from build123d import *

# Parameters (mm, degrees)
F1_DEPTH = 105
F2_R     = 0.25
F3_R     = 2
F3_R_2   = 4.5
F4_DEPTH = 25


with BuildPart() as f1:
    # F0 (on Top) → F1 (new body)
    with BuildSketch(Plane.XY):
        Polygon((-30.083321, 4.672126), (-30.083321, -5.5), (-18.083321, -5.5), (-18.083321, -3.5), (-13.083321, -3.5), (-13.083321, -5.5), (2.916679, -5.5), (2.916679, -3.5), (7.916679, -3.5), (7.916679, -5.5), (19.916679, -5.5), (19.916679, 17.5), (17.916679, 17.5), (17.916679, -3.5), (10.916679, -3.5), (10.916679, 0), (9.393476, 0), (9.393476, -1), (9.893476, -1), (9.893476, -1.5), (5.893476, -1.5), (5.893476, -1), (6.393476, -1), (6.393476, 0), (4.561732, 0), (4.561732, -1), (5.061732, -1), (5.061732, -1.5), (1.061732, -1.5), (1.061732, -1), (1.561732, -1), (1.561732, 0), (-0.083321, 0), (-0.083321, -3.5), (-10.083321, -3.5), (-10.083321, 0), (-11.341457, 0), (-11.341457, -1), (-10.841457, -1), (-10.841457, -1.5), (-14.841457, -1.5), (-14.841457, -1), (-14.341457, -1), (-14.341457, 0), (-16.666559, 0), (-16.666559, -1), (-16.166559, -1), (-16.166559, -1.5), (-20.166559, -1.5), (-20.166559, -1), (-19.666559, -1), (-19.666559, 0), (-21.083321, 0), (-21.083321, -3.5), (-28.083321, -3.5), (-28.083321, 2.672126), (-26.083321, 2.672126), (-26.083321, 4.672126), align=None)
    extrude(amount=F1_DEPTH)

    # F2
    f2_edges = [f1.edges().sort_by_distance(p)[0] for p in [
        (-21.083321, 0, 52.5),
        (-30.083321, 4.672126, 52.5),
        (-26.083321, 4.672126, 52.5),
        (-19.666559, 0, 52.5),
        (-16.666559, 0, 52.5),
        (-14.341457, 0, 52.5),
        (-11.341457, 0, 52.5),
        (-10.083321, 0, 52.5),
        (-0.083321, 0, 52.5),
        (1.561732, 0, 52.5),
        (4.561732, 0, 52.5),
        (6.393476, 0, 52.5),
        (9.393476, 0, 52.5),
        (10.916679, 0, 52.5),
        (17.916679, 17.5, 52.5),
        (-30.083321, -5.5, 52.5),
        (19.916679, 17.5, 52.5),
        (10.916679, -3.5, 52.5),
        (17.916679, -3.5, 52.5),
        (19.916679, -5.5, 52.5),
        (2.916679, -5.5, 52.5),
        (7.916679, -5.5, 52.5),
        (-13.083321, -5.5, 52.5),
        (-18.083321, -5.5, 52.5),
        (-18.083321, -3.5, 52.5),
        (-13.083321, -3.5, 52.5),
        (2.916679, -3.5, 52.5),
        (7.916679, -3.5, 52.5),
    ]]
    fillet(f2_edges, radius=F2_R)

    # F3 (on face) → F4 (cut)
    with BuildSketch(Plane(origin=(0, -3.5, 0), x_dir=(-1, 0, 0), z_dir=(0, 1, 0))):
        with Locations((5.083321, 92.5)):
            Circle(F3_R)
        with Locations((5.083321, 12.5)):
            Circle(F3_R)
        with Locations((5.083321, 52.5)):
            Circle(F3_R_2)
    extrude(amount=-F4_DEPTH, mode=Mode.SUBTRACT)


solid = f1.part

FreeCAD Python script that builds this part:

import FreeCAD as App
import Part
import Sketcher
from FreeCAD import Vector


def edges_at(feature, points):
    """Names of the edges that pass closest to the given points."""
    edges = feature.Shape.Edges
    near = lambda p: min(range(len(edges)), key=lambda i: edges[i].distToShape(Part.Vertex(*p))[0])
    return sorted({f"Edge{near(p) + 1}" for p in points})


def add_polygon(sketch, points):
    """Adds a closed chain of lines whose ends are joined by coincident constraints."""
    first, n = sketch.GeometryCount, len(points)
    for a, b in zip(points, points[1:] + points[:1]):
        sketch.addGeometry(Part.LineSegment(App.Vector(*a, 0), App.Vector(*b, 0)), False)
    for i in range(n):
        sketch.addConstraint(Sketcher.Constraint("Coincident", first + i, 2, first + (i + 1) % n, 1))

doc = App.newDocument("Part")
body = doc.addObject("PartDesign::Body", "Body")

sketch1 = body.newObject("Sketcher::SketchObject", "Sketch")
sketch1.AttachmentSupport = (doc.getObject("XY_Plane"), [""])
sketch1.MapMode = "FlatFace"
add_polygon(sketch1, [(-30.1, 4.7), (-30.1, -5.5), (-18.1, -5.5), (-18.1, -3.5), (-13.1, -3.5), (-13.1, -5.5), (2.9, -5.5), (2.9, -3.5), (7.9, -3.5), (7.9, -5.5), (19.9, -5.5), (19.9, 17.5), (17.9, 17.5), (17.9, -3.5), (10.9, -3.5), (10.9, 0), (9.4, 0), (9.4, -1), (9.9, -1), (9.9, -1.5), (5.9, -1.5), (5.9, -1), (6.4, -1), (6.4, 0), (4.6, 0), (4.6, -1), (5.1, -1), (5.1, -1.5), (1.1, -1.5), (1.1, -1), (1.6, -1), (1.6, 0), (-0.1, 0), (-0.1, -3.5), (-10.1, -3.5), (-10.1, 0), (-11.3, 0), (-11.3, -1), (-10.8, -1), (-10.8, -1.5), (-14.8, -1.5), (-14.8, -1), (-14.3, -1), (-14.3, 0), (-16.7, 0), (-16.7, -1), (-16.2, -1), (-16.2, -1.5), (-20.2, -1.5), (-20.2, -1), (-19.7, -1), (-19.7, 0), (-21.1, 0), (-21.1, -3.5), (-28.1, -3.5), (-28.1, 2.7), (-26.1, 2.7), (-26.1, 4.7)])
sketch1.addConstraint([
    Sketcher.Constraint("Vertical", 0),
    Sketcher.Constraint("Horizontal", 1),
    Sketcher.Constraint("Vertical", 2),
    Sketcher.Constraint("Horizontal", 3),
    Sketcher.Constraint("Vertical", 4),
    Sketcher.Constraint("Horizontal", 5),
    Sketcher.Constraint("Vertical", 6),
    Sketcher.Constraint("Horizontal", 7),
    Sketcher.Constraint("Vertical", 8),
    Sketcher.Constraint("Horizontal", 9),
    Sketcher.Constraint("Vertical", 10),
    Sketcher.Constraint("Horizontal", 11),
    Sketcher.Constraint("Vertical", 12),
    Sketcher.Constraint("Horizontal", 13),
    Sketcher.Constraint("Vertical", 14),
    Sketcher.Constraint("Horizontal", 15),
    Sketcher.Constraint("Vertical", 16),
    Sketcher.Constraint("Horizontal", 17),
    Sketcher.Constraint("Vertical", 18),
    Sketcher.Constraint("Horizontal", 19),
    Sketcher.Constraint("Vertical", 20),
    Sketcher.Constraint("Horizontal", 21),
    Sketcher.Constraint("Vertical", 22),
    Sketcher.Constraint("Horizontal", 23),
    Sketcher.Constraint("Vertical", 24),
    Sketcher.Constraint("Horizontal", 25),
    Sketcher.Constraint("Vertical", 26),
    Sketcher.Constraint("Horizontal", 27),
    Sketcher.Constraint("Vertical", 28),
    Sketcher.Constraint("Horizontal", 29),
    Sketcher.Constraint("Vertical", 30),
    Sketcher.Constraint("Horizontal", 31),
    Sketcher.Constraint("Vertical", 32),
    Sketcher.Constraint("Horizontal", 33),
    Sketcher.Constraint("Vertical", 34),
    Sketcher.Constraint("Horizontal", 35),
    Sketcher.Constraint("Vertical", 36),
    Sketcher.Constraint("Horizontal", 37),
    Sketcher.Constraint("Vertical", 38),
    Sketcher.Constraint("Horizontal", 39),
    Sketcher.Constraint("Vertical", 40),
    Sketcher.Constraint("Horizontal", 41),
    Sketcher.Constraint("Vertical", 42),
    Sketcher.Constraint("Horizontal", 43),
    Sketcher.Constraint("Vertical", 44),
    Sketcher.Constraint("Horizontal", 45),
    Sketcher.Constraint("Vertical", 46),
    Sketcher.Constraint("Horizontal", 47),
    Sketcher.Constraint("Vertical", 48),
    Sketcher.Constraint("Horizontal", 49),
    Sketcher.Constraint("Vertical", 50),
    Sketcher.Constraint("Horizontal", 51),
    Sketcher.Constraint("Vertical", 52),
    Sketcher.Constraint("Horizontal", 53),
    Sketcher.Constraint("Vertical", 54),
    Sketcher.Constraint("Horizontal", 55),
    Sketcher.Constraint("Vertical", 56),
    Sketcher.Constraint("Horizontal", 57),
    Sketcher.Constraint("PointOnObject", 14, 2, -1),
    Sketcher.Constraint("PointOnObject", 22, 2, -1),
    Sketcher.Constraint("PointOnObject", 30, 2, -1),
    Sketcher.Constraint("PointOnObject", 34, 2, -1),
    Sketcher.Constraint("PointOnObject", 42, 2, -1),
    Sketcher.Constraint("PointOnObject", 50, 2, -1),
    Sketcher.Constraint("Horizontal", 1, 2, 4, 2),
    Sketcher.Constraint("Horizontal", 3, 2, 6, 2),
    Sketcher.Constraint("Horizontal", 5, 2, 8, 2),
    Sketcher.Constraint("Horizontal", 7, 2, 12, 2),
    Sketcher.Constraint("Horizontal", 17, 2, 20, 2),
    Sketcher.Constraint("Horizontal", 21, 2, 24, 2),
    Sketcher.Constraint("Horizontal", 19, 2, 26, 2),
    Sketcher.Constraint("Horizontal", 25, 2, 28, 2),
    Sketcher.Constraint("Horizontal", 13, 2, 32, 2),
    Sketcher.Constraint("Horizontal", 29, 2, 36, 2),
    Sketcher.Constraint("Horizontal", 27, 2, 38, 2),
    Sketcher.Constraint("Horizontal", 37, 2, 40, 2),
    Sketcher.Constraint("Horizontal", 41, 2, 44, 2),
    Sketcher.Constraint("Horizontal", 39, 2, 46, 2),
    Sketcher.Constraint("Horizontal", 45, 2, 48, 2),
    Sketcher.Constraint("Horizontal", 33, 2, 52, 2),
    Sketcher.Constraint("Equal", 3, 7),
    Sketcher.Constraint("Equal", 1, 9),
    Sketcher.Constraint("Equal", 17, 21),
    Sketcher.Constraint("Equal", 21, 25),
    Sketcher.Constraint("Equal", 19, 27),
    Sketcher.Constraint("Equal", 25, 29),
    Sketcher.Constraint("Equal", 29, 37),
    Sketcher.Constraint("Equal", 27, 39),
    Sketcher.Constraint("Equal", 37, 41),
    Sketcher.Constraint("Equal", 41, 45),
    Sketcher.Constraint("Equal", 39, 47),
    Sketcher.Constraint("Equal", 45, 49),
    Sketcher.Constraint("Equal", 13, 53),
    Sketcher.Constraint("Equal", 11, 55),
    Sketcher.Constraint("Equal", 47, 57),
    Sketcher.Constraint("Equal", 55, 2),
    Sketcher.Constraint("Equal", 49, 18),
    Sketcher.Constraint("Equal", 8, 56),
    Sketcher.Constraint("DistanceX", 1, 1, 1, 2, 12.0),
    Sketcher.Constraint("DistanceX", 3, 1, 3, 2, 5.0),
    Sketcher.Constraint("DistanceX", 5, 1, 5, 2, 16.0),
    Sketcher.Constraint("DistanceX", 11, 2, 11, 1, 2.0),
    Sketcher.Constraint("DistanceX", 13, 2, 13, 1, 7.0),
    Sketcher.Constraint("DistanceX", 19, 2, 19, 1, 4.0),
    Sketcher.Constraint("DistanceX", 33, 2, 33, 1, 10.0),
    Sketcher.Constraint("DistanceY", 10, 1, 10, 2, 23.0),
    Sketcher.Constraint("DistanceY", 16, 2, 16, 1, 1.0),
    Sketcher.Constraint("DistanceX", 17, 1, 17, 2, 0.5),
    Sketcher.Constraint("DistanceY", 14, 1, 14, 2, 3.5),
    Sketcher.Constraint("DistanceX", 31, 2, 6, 2, 3.0),
    Sketcher.Constraint("DistanceX", 43, 2, 43, 1, 2.325102),
    Sketcher.Constraint("DistanceX", 15, 2, 15, 1, 1.523203),
    Sketcher.Constraint("DistanceX", 23, 2, 23, 1, 1.831744),
    Sketcher.Constraint("DistanceX", 35, 2, 35, 1, 1.258136),
    Sketcher.Constraint("DistanceY", 0, 2, 0, 1, 10.172126),
    Sketcher.Constraint("DistanceX", 0, 2, -1, 1, 30.083321),
])
pad1 = body.newObject("PartDesign::Pad", "Pad")
pad1.Profile = sketch1
pad1.Length = 105
doc.recompute()

fillet = body.newObject("PartDesign::Fillet", "Fillet")
fillet.Base = (pad1, edges_at(pad1, [
    (-21.083, 0, 52.5),
    (-30.083, 4.672, 52.5),
    (-26.083, 4.672, 52.5),
    (-19.667, 0, 52.5),
    (-16.667, 0, 52.5),
    (-14.341, 0, 52.5),
    (-11.341, 0, 52.5),
    (-10.083, 0, 52.5),
    (-0.083, 0, 52.5),
    (1.562, 0, 52.5),
    (4.562, 0, 52.5),
    (6.393, 0, 52.5),
    (9.393, 0, 52.5),
    (10.917, 0, 52.5),
    (17.917, 17.5, 52.5),
    (-30.083, -5.5, 52.5),
    (19.917, 17.5, 52.5),
    (10.917, -3.5, 52.5),
    (17.917, -3.5, 52.5),
    (19.917, -5.5, 52.5),
    (2.917, -5.5, 52.5),
    (7.917, -5.5, 52.5),
    (-13.083, -5.5, 52.5),
    (-18.083, -5.5, 52.5),
    (-18.083, -3.5, 52.5),
    (-13.083, -3.5, 52.5),
    (2.917, -3.5, 52.5),
    (7.917, -3.5, 52.5),
]))
fillet.Radius = 0.25

sketch2 = body.newObject("Sketcher::SketchObject", "Sketch001")
sketch2.AttachmentSupport = (doc.getObject("XZ_Plane"), [""])
sketch2.MapMode = "FlatFace"
sketch2.AttachmentOffset = App.Placement(Vector(0, 0, 3.5), App.Rotation())
sketch2.addGeometry([
    Part.Circle(Vector(-5.1, 92.5, 0), Vector(0, 0, 1), 2),
    Part.Circle(Vector(-5.1, 12.5, 0), Vector(0, 0, 1), 2),
    Part.Circle(Vector(-5.1, 52.5, 0), Vector(0, 0, 1), 4.5),
], False)
sketch2.addConstraint([
    Sketcher.Constraint("Equal", 0, 1),
    Sketcher.Constraint("Vertical", 0, 3, 1, 3),
    Sketcher.Constraint("Vertical", 1, 3, 2, 3),
    Sketcher.Constraint("Diameter", 0, 4.0),
    Sketcher.Constraint("Diameter", 2, 9.0),
    Sketcher.Constraint("DistanceY", 1, 3, 0, 3, 80.0),
    Sketcher.Constraint("DistanceY", 2, 3, 0, 3, 40.0),
    Sketcher.Constraint("DistanceY", -1, 1, 0, 3, 92.5),
    Sketcher.Constraint("DistanceX", 0, 3, -1, 1, 5.083321),
])
pocket1 = body.newObject("PartDesign::Pocket", "Pocket")
pocket1.Profile = sketch2
pocket1.Length = 25
pocket1.Reversed = True

doc.recompute()
